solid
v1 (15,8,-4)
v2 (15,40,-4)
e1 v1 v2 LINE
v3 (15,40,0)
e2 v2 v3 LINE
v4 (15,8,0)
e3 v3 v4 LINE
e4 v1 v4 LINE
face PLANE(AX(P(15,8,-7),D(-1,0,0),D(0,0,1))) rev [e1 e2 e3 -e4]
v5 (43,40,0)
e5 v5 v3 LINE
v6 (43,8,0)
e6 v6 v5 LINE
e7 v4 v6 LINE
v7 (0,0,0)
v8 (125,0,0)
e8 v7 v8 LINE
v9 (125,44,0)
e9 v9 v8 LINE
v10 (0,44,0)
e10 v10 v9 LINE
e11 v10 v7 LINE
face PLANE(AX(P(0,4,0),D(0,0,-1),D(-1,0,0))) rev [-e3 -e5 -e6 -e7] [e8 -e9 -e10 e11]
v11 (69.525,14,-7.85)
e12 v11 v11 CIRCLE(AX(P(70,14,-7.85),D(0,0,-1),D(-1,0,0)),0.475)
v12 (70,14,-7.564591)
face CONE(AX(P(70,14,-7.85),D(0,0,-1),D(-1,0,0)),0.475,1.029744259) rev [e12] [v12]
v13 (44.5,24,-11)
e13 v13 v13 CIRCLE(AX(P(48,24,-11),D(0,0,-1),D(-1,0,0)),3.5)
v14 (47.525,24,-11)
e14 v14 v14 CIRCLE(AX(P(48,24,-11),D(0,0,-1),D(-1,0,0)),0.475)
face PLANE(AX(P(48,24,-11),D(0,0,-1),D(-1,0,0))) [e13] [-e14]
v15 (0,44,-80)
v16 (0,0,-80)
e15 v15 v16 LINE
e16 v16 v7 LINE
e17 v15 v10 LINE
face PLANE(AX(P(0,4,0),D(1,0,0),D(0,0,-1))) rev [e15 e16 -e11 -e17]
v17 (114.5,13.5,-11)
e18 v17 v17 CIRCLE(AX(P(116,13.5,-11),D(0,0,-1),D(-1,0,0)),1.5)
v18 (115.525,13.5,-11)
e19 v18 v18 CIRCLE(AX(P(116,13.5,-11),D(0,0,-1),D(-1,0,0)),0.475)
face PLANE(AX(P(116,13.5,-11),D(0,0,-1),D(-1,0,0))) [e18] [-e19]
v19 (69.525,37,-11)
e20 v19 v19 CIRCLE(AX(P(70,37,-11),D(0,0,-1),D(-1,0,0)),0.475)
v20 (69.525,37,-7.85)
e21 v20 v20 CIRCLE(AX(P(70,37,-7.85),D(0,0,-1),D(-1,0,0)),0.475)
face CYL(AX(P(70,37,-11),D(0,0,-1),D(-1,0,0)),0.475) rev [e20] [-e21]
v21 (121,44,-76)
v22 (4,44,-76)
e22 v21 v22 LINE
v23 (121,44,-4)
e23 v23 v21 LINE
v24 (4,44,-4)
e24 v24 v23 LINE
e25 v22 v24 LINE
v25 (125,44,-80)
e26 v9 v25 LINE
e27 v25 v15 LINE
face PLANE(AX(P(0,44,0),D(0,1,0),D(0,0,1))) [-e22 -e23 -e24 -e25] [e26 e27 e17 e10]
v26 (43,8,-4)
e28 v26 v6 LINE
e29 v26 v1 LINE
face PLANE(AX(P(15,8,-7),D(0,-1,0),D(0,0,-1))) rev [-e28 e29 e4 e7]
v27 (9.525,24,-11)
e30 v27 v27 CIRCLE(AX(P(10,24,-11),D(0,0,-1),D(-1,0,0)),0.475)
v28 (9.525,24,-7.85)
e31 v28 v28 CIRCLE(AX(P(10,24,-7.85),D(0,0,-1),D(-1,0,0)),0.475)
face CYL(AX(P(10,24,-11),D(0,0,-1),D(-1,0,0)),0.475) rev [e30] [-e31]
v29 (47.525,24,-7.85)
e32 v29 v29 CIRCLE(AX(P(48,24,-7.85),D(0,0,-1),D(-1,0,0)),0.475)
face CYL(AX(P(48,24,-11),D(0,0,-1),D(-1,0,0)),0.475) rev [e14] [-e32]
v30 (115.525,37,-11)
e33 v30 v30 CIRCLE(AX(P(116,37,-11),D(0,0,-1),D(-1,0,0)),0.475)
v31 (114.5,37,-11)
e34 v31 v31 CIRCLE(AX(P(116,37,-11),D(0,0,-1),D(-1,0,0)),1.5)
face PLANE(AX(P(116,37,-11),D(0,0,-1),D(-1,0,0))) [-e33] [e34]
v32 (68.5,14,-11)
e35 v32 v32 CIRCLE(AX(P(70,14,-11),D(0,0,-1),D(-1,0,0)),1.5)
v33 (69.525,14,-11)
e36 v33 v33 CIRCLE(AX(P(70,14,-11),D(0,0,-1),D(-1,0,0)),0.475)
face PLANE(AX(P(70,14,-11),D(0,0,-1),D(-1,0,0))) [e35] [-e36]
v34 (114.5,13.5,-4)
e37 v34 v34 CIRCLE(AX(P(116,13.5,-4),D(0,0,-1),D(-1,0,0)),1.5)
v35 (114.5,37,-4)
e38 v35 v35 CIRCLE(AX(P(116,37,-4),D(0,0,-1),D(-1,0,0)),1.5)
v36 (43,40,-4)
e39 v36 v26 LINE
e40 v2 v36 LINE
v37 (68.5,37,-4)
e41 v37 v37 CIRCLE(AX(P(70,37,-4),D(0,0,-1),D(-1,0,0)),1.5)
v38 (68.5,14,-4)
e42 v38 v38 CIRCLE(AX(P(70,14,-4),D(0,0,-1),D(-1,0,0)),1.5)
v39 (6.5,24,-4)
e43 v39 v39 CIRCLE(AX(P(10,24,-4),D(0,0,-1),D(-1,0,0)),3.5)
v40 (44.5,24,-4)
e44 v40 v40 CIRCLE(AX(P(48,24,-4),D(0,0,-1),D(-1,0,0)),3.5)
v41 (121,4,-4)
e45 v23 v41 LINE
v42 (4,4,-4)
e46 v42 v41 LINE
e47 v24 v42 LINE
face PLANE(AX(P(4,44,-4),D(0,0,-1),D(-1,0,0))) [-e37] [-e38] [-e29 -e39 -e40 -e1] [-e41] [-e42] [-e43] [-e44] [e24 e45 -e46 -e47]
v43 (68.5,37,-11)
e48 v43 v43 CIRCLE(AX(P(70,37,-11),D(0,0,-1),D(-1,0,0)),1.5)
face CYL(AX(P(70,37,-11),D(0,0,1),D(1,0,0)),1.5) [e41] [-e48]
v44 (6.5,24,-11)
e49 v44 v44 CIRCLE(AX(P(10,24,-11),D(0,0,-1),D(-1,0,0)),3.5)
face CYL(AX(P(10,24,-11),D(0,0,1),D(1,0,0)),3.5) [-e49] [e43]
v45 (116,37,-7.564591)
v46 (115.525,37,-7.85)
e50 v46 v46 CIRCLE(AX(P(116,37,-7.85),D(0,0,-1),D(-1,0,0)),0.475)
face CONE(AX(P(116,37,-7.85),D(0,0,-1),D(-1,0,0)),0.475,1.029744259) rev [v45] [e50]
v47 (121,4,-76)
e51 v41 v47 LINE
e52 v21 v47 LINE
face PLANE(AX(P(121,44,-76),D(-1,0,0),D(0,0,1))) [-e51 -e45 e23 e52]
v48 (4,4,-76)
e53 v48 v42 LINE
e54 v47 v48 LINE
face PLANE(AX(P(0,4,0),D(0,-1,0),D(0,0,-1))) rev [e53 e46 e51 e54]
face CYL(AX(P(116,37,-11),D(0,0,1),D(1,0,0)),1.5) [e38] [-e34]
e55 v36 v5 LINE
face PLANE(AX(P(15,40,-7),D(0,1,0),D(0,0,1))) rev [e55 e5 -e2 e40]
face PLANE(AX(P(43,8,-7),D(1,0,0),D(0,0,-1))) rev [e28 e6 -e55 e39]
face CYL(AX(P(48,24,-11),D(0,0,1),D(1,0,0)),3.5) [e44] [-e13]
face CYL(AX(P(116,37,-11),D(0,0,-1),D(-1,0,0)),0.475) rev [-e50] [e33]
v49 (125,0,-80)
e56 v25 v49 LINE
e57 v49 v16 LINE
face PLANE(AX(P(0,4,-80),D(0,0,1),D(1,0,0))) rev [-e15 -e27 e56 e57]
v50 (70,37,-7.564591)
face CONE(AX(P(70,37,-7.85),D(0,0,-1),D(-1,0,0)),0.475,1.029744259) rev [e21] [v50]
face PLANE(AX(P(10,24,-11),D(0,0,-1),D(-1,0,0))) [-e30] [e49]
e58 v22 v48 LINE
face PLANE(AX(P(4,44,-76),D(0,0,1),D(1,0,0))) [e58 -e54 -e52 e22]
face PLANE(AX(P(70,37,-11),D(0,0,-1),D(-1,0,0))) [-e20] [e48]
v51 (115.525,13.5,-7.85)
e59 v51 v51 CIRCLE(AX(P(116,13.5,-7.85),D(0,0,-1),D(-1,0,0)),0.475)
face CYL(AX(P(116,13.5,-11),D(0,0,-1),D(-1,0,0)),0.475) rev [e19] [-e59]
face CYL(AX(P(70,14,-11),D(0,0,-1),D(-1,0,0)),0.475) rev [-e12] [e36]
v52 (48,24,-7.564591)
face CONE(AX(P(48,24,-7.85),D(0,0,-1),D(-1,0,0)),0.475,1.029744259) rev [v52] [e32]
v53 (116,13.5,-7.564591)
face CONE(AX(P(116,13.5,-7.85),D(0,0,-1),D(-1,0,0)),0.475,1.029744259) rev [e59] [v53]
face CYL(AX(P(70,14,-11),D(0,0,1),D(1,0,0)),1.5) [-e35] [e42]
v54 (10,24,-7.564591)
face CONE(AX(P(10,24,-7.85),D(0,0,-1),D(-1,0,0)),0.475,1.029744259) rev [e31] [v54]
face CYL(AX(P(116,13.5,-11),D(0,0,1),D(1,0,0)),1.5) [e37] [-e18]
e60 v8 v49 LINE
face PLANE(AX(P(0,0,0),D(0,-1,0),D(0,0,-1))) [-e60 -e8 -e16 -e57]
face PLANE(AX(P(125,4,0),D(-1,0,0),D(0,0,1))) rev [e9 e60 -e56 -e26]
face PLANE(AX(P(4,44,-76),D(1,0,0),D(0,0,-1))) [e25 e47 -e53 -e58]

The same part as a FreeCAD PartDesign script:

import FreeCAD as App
import Part
import Sketcher
from FreeCAD import Vector


def add_polygon(sketch, points):
    """Adds a closed chain of lines whose ends are joined by coincident constraints."""
    first, n = sketch.GeometryCount, len(points)
    for a, b in zip(points, points[1:] + points[:1]):
        sketch.addGeometry(Part.LineSegment(App.Vector(*a, 0), App.Vector(*b, 0)), False)
    for i in range(n):
        sketch.addConstraint(Sketcher.Constraint("Coincident", first + i, 2, first + (i + 1) % n, 1))

doc = App.newDocument("Part")
params = doc.addObject("Spreadsheet::Sheet", "Params")
for row, (alias, value) in enumerate([
    ("sketch1_width", "125 mm"),
    ("sketch1_height", "80 mm"),
    ("pad1_length", "4 mm"),
    ("sketch2_width", "125 mm"),
    ("sketch2_width2", "117 mm"),
    ("sketch2_height", "80 mm"),
    ("sketch2_height2", "72 mm"),
    ("pad2_length", "40 mm"),
    ("sketch3_width", "28 mm"),
    ("sketch3_height", "32 mm"),
    ("pocket1_length", "7 mm"),
    ("sketch4_diameter", "7 mm"),
    ("sketch4_diameter2", "3 mm"),
    ("pad3_length", "7 mm"),
    ("sketch5_diameter", "0.95 mm"),
    ("hole_diameter", "0.95 mm"),
    ("hole_depth", "3.15 mm"),
], start=1):
    params.set(f"A{row}", alias)
    params.set(f"B{row}", "=" + value)
    params.setAlias(f"B{row}", alias)

body = doc.addObject("PartDesign::Body", "Body")

sketch1 = doc.addObject("Sketcher::SketchObject", "Sketch")
body.addObject(sketch1)
sketch1.AttachmentSupport = (doc.XZ_Plane, [""])
sketch1.MapMode = "FlatFace"
add_polygon(sketch1, [(0, -80), (0, 0), (125, 0), (125, -80)])
sketch1.addConstraint(Sketcher.Constraint("Vertical", 0))
sketch1.addConstraint(Sketcher.Constraint("Horizontal", 1))
sketch1.addConstraint(Sketcher.Constraint("Vertical", 2))
sketch1.addConstraint(Sketcher.Constraint("Horizontal", 3))
sketch1.addConstraint(Sketcher.Constraint("Coincident", 0, 2, -1, 1))
sketch1.addConstraint(Sketcher.Constraint("DistanceX", 1, 1, 1, 2, 125.0))
sketch1.addConstraint(Sketcher.Constraint("DistanceY", 0, 1, 0, 2, 80.0))
sketch1.setExpression("Constraints[9]", "Params.sketch1_width")
sketch1.setExpression("Constraints[10]", "Params.sketch1_height")
pad1 = doc.addObject("PartDesign::Pad", "Pad")
body.addObject(pad1)
pad1.Profile = sketch1
pad1.setExpression("Length", "Params.pad1_length")
pad1.Reversed = True

sketch2 = doc.addObject("Sketcher::SketchObject", "Sketch001")
body.addObject(sketch2)
sketch2.AttachmentSupport = (doc.XZ_Plane, [""])
sketch2.MapMode = "FlatFace"
sketch2.AttachmentOffset = App.Placement(Vector(0, 0, -4), App.Rotation())
add_polygon(sketch2, [(0, -80), (0, 0), (125, 0), (125, -80)])
add_polygon(sketch2, [(121, -4), (4, -4), (4, -76), (121, -76)])
sketch2.addConstraint(Sketcher.Constraint("Vertical", 0))
sketch2.addConstraint(Sketcher.Constraint("Horizontal", 1))
sketch2.addConstraint(Sketcher.Constraint("Vertical", 2))
sketch2.addConstraint(Sketcher.Constraint("Horizontal", 3))
sketch2.addConstraint(Sketcher.Constraint("Horizontal", 4))
sketch2.addConstraint(Sketcher.Constraint("Vertical", 5))
sketch2.addConstraint(Sketcher.Constraint("Horizontal", 6))
sketch2.addConstraint(Sketcher.Constraint("Vertical", 7))
sketch2.addConstraint(Sketcher.Constraint("Coincident", 0, 2, -1, 1))
sketch2.addConstraint(Sketcher.Constraint("DistanceX", 1, 1, 1, 2, 125.0))
sketch2.addConstraint(Sketcher.Constraint("DistanceX", 4, 2, 4, 1, 117.0))
sketch2.addConstraint(Sketcher.Constraint("DistanceY", 0, 1, 0, 2, 80.0))
sketch2.addConstraint(Sketcher.Constraint("DistanceY", 5, 2, 5, 1, 72.0))
sketch2.addConstraint(Sketcher.Constraint("DistanceX", -1, 1, 4, 2, 4.0))
sketch2.addConstraint(Sketcher.Constraint("DistanceY", 4, 2, -1, 1, 4.0))
sketch2.setExpression("Constraints[17]", "Params.sketch2_width")
sketch2.setExpression("Constraints[18]", "Params.sketch2_width2")
sketch2.setExpression("Constraints[19]", "Params.sketch2_height")
sketch2.setExpression("Constraints[20]", "Params.sketch2_height2")
pad2 = doc.addObject("PartDesign::Pad", "Pad001")
body.addObject(pad2)
pad2.Profile = sketch2
pad2.setExpression("Length", "Params.pad2_length")
pad2.Reversed = True

sketch3 = doc.addObject("Sketcher::SketchObject", "Sketch002")
body.addObject(sketch3)
sketch3.AttachmentSupport = (doc.XY_Plane, [""])
sketch3.MapMode = "FlatFace"
add_polygon(sketch3, [(15, 40), (15, 8), (43, 8), (43, 40)])
sketch3.addConstraint(Sketcher.Constraint("Vertical", 0))
sketch3.addConstraint(Sketcher.Constraint("Horizontal", 1))
sketch3.addConstraint(Sketcher.Constraint("Vertical", 2))
sketch3.addConstraint(Sketcher.Constraint("Horizontal", 3))
sketch3.addConstraint(Sketcher.Constraint("DistanceX", 1, 1, 1, 2, 28.0))
sketch3.addConstraint(Sketcher.Constraint("DistanceY", 0, 2, 0, 1, 32.0))
sketch3.addConstraint(Sketcher.Constraint("DistanceX", -1, 1, 0, 2, 15.0))
sketch3.addConstraint(Sketcher.Constraint("DistanceY", -1, 1, 0, 2, 8.0))
sketch3.setExpression("Constraints[8]", "Params.sketch3_width")
sketch3.setExpression("Constraints[9]", "Params.sketch3_height")
pocket1 = doc.addObject("PartDesign::Pocket", "Pocket")
body.addObject(pocket1)
pocket1.Profile = sketch3
pocket1.setExpression("Length", "Params.pocket1_length")

sketch4 = doc.addObject("Sketcher::SketchObject", "Sketch003")
body.addObject(sketch4)
sketch4.AttachmentSupport = (doc.XY_Plane, [""])
sketch4.MapMode = "FlatFace"
sketch4.AttachmentOffset = App.Placement(Vector(0, 0, -4), App.Rotation())
sketch4.addGeometry(Part.Circle(Vector(48, 24, 0), Vector(0, 0, 1), 3.5), False)
sketch4.addGeometry(Part.Circle(Vector(10, 24, 0), Vector(0, 0, 1), 3.5), False)
sketch4.addGeometry(Part.Circle(Vector(116, 37, 0), Vector(0, 0, 1), 1.5), False)
sketch4.addGeometry(Part.Circle(Vector(70, 37, 0), Vector(0, 0, 1), 1.5), False)
sketch4.addGeometry(Part.Circle(Vector(116, 13.5, 0), Vector(0, 0, 1), 1.5), False)
sketch4.addGeometry(Part.Circle(Vector(70, 14, 0), Vector(0, 0, 1), 1.5), False)
sketch4.addConstraint(Sketcher.Constraint("Equal", 0, 1))
sketch4.addConstraint(Sketcher.Constraint("Equal", 2, 3))
sketch4.addConstraint(Sketcher.Constraint("Equal", 3, 4))
sketch4.addConstraint(Sketcher.Constraint("Equal", 4, 5))
sketch4.addConstraint(Sketcher.Constraint("Horizontal", 0, 3, 1, 3))
sketch4.addConstraint(Sketcher.Constraint("Horizontal", 2, 3, 3, 3))
sketch4.addConstraint(Sketcher.Constraint("Vertical", 2, 3, 4, 3))
sketch4.addConstraint(Sketcher.Constraint("Vertical", 3, 3, 5, 3))
sketch4.addConstraint(Sketcher.Constraint("Diameter", 0, 7.0))
sketch4.addConstraint(Sketcher.Constraint("Diameter", 2, 3.0))
sketch4.addConstraint(Sketcher.Constraint("DistanceX", -1, 1, 0, 3, 48.0))
sketch4.addConstraint(Sketcher.Constraint("DistanceY", -1, 1, 0, 3, 24.0))
sketch4.addConstraint(Sketcher.Constraint("DistanceX", -1, 1, 1, 3, 10.0))
sketch4.addConstraint(Sketcher.Constraint("DistanceX", -1, 1, 2, 3, 116.0))
sketch4.addConstraint(Sketcher.Constraint("DistanceY", -1, 1, 2, 3, 37.0))
sketch4.addConstraint(Sketcher.Constraint("DistanceX", -1, 1, 3, 3, 70.0))
sketch4.addConstraint(Sketcher.Constraint("DistanceY", -1, 1, 5, 3, 14.0))
sketch4.addConstraint(Sketcher.Constraint("DistanceY", -1, 1, 4, 3, 13.5))
sketch4.setExpression("Constraints[8]", "Params.sketch4_diameter")
sketch4.setExpression("Constraints[9]", "Params.sketch4_diameter2")
pad3 = doc.addObject("PartDesign::Pad", "Pad002")
body.addObject(pad3)
pad3.Profile = sketch4
pad3.setExpression("Length", "Params.pad3_length")
pad3.Reversed = True

sketch5 = doc.addObject("Sketcher::SketchObject", "Sketch004")
body.addObject(sketch5)
sketch5.AttachmentSupport = (doc.XY_Plane, [""])
sketch5.MapMode = "FlatFace"
sketch5.AttachmentOffset = App.Placement(Vector(0, 0, -11), App.Rotation())
sketch5.addGeometry(Part.Circle(Vector(48, 24, 0), Vector(0, 0, 1), 0.475), False)
sketch5.addGeometry(Part.Circle(Vector(10, 24, 0), Vector(0, 0, 1), 0.475), False)
sketch5.addGeometry(Part.Circle(Vector(70, 14, 0), Vector(0, 0, 1), 0.475), False)
sketch5.addGeometry(Part.Circle(Vector(70, 37, 0), Vector(0, 0, 1), 0.475), False)
sketch5.addGeometry(Part.Circle(Vector(116, 13.5, 0), Vector(0, 0, 1), 0.475), False)
sketch5.addGeometry(Part.Circle(Vector(116, 37, 0), Vector(0, 0, 1), 0.475), False)
sketch5.addConstraint(Sketcher.Constraint("Equal", 0, 1))
sketch5.addConstraint(Sketcher.Constraint("Equal", 1, 2))
sketch5.addConstraint(Sketcher.Constraint("Equal", 2, 3))
sketch5.addConstraint(Sketcher.Constraint("Equal", 3, 4))
sketch5.addConstraint(Sketcher.Constraint("Equal", 4, 5))
sketch5.addConstraint(Sketcher.Constraint("Horizontal", 0, 3, 1, 3))
sketch5.addConstraint(Sketcher.Constraint("Horizontal", 3, 3, 5, 3))
sketch5.addConstraint(Sketcher.Constraint("Vertical", 2, 3, 3, 3))
sketch5.addConstraint(Sketcher.Constraint("Vertical", 4, 3, 5, 3))
sketch5.addConstraint(Sketcher.Constraint("Diameter", 0, 0.95))
sketch5.addConstraint(Sketcher.Constraint("DistanceX", -1, 1, 0, 3, 48.0))
sketch5.addConstraint(Sketcher.Constraint("DistanceY", -1, 1, 0, 3, 24.0))
sketch5.addConstraint(Sketcher.Constraint("DistanceX", -1, 1, 1, 3, 10.0))
sketch5.addConstraint(Sketcher.Constraint("DistanceX", -1, 1, 2, 3, 70.0))
sketch5.addConstraint(Sketcher.Constraint("DistanceY", -1, 1, 2, 3, 14.0))
sketch5.addConstraint(Sketcher.Constraint("DistanceY", -1, 1, 3, 3, 37.0))
sketch5.addConstraint(Sketcher.Constraint("DistanceX", -1, 1, 4, 3, 116.0))
sketch5.addConstraint(Sketcher.Constraint("DistanceY", -1, 1, 4, 3, 13.5))
sketch5.setExpression("Constraints[9]", "Params.sketch5_diameter")
doc.recompute()
hole = doc.addObject("PartDesign::Hole", "Hole")
body.addObject(hole)
hole.Profile = sketch5
hole.ThreadType = "None"
hole.setExpression("Diameter", "Params.hole_diameter")
hole.DepthType = "Dimension"
hole.setExpression("Depth", "Params.hole_depth")
hole.DrillPoint = "Angled"
hole.DrillPointAngle = 118
hole.Reversed = True

doc.recompute()
